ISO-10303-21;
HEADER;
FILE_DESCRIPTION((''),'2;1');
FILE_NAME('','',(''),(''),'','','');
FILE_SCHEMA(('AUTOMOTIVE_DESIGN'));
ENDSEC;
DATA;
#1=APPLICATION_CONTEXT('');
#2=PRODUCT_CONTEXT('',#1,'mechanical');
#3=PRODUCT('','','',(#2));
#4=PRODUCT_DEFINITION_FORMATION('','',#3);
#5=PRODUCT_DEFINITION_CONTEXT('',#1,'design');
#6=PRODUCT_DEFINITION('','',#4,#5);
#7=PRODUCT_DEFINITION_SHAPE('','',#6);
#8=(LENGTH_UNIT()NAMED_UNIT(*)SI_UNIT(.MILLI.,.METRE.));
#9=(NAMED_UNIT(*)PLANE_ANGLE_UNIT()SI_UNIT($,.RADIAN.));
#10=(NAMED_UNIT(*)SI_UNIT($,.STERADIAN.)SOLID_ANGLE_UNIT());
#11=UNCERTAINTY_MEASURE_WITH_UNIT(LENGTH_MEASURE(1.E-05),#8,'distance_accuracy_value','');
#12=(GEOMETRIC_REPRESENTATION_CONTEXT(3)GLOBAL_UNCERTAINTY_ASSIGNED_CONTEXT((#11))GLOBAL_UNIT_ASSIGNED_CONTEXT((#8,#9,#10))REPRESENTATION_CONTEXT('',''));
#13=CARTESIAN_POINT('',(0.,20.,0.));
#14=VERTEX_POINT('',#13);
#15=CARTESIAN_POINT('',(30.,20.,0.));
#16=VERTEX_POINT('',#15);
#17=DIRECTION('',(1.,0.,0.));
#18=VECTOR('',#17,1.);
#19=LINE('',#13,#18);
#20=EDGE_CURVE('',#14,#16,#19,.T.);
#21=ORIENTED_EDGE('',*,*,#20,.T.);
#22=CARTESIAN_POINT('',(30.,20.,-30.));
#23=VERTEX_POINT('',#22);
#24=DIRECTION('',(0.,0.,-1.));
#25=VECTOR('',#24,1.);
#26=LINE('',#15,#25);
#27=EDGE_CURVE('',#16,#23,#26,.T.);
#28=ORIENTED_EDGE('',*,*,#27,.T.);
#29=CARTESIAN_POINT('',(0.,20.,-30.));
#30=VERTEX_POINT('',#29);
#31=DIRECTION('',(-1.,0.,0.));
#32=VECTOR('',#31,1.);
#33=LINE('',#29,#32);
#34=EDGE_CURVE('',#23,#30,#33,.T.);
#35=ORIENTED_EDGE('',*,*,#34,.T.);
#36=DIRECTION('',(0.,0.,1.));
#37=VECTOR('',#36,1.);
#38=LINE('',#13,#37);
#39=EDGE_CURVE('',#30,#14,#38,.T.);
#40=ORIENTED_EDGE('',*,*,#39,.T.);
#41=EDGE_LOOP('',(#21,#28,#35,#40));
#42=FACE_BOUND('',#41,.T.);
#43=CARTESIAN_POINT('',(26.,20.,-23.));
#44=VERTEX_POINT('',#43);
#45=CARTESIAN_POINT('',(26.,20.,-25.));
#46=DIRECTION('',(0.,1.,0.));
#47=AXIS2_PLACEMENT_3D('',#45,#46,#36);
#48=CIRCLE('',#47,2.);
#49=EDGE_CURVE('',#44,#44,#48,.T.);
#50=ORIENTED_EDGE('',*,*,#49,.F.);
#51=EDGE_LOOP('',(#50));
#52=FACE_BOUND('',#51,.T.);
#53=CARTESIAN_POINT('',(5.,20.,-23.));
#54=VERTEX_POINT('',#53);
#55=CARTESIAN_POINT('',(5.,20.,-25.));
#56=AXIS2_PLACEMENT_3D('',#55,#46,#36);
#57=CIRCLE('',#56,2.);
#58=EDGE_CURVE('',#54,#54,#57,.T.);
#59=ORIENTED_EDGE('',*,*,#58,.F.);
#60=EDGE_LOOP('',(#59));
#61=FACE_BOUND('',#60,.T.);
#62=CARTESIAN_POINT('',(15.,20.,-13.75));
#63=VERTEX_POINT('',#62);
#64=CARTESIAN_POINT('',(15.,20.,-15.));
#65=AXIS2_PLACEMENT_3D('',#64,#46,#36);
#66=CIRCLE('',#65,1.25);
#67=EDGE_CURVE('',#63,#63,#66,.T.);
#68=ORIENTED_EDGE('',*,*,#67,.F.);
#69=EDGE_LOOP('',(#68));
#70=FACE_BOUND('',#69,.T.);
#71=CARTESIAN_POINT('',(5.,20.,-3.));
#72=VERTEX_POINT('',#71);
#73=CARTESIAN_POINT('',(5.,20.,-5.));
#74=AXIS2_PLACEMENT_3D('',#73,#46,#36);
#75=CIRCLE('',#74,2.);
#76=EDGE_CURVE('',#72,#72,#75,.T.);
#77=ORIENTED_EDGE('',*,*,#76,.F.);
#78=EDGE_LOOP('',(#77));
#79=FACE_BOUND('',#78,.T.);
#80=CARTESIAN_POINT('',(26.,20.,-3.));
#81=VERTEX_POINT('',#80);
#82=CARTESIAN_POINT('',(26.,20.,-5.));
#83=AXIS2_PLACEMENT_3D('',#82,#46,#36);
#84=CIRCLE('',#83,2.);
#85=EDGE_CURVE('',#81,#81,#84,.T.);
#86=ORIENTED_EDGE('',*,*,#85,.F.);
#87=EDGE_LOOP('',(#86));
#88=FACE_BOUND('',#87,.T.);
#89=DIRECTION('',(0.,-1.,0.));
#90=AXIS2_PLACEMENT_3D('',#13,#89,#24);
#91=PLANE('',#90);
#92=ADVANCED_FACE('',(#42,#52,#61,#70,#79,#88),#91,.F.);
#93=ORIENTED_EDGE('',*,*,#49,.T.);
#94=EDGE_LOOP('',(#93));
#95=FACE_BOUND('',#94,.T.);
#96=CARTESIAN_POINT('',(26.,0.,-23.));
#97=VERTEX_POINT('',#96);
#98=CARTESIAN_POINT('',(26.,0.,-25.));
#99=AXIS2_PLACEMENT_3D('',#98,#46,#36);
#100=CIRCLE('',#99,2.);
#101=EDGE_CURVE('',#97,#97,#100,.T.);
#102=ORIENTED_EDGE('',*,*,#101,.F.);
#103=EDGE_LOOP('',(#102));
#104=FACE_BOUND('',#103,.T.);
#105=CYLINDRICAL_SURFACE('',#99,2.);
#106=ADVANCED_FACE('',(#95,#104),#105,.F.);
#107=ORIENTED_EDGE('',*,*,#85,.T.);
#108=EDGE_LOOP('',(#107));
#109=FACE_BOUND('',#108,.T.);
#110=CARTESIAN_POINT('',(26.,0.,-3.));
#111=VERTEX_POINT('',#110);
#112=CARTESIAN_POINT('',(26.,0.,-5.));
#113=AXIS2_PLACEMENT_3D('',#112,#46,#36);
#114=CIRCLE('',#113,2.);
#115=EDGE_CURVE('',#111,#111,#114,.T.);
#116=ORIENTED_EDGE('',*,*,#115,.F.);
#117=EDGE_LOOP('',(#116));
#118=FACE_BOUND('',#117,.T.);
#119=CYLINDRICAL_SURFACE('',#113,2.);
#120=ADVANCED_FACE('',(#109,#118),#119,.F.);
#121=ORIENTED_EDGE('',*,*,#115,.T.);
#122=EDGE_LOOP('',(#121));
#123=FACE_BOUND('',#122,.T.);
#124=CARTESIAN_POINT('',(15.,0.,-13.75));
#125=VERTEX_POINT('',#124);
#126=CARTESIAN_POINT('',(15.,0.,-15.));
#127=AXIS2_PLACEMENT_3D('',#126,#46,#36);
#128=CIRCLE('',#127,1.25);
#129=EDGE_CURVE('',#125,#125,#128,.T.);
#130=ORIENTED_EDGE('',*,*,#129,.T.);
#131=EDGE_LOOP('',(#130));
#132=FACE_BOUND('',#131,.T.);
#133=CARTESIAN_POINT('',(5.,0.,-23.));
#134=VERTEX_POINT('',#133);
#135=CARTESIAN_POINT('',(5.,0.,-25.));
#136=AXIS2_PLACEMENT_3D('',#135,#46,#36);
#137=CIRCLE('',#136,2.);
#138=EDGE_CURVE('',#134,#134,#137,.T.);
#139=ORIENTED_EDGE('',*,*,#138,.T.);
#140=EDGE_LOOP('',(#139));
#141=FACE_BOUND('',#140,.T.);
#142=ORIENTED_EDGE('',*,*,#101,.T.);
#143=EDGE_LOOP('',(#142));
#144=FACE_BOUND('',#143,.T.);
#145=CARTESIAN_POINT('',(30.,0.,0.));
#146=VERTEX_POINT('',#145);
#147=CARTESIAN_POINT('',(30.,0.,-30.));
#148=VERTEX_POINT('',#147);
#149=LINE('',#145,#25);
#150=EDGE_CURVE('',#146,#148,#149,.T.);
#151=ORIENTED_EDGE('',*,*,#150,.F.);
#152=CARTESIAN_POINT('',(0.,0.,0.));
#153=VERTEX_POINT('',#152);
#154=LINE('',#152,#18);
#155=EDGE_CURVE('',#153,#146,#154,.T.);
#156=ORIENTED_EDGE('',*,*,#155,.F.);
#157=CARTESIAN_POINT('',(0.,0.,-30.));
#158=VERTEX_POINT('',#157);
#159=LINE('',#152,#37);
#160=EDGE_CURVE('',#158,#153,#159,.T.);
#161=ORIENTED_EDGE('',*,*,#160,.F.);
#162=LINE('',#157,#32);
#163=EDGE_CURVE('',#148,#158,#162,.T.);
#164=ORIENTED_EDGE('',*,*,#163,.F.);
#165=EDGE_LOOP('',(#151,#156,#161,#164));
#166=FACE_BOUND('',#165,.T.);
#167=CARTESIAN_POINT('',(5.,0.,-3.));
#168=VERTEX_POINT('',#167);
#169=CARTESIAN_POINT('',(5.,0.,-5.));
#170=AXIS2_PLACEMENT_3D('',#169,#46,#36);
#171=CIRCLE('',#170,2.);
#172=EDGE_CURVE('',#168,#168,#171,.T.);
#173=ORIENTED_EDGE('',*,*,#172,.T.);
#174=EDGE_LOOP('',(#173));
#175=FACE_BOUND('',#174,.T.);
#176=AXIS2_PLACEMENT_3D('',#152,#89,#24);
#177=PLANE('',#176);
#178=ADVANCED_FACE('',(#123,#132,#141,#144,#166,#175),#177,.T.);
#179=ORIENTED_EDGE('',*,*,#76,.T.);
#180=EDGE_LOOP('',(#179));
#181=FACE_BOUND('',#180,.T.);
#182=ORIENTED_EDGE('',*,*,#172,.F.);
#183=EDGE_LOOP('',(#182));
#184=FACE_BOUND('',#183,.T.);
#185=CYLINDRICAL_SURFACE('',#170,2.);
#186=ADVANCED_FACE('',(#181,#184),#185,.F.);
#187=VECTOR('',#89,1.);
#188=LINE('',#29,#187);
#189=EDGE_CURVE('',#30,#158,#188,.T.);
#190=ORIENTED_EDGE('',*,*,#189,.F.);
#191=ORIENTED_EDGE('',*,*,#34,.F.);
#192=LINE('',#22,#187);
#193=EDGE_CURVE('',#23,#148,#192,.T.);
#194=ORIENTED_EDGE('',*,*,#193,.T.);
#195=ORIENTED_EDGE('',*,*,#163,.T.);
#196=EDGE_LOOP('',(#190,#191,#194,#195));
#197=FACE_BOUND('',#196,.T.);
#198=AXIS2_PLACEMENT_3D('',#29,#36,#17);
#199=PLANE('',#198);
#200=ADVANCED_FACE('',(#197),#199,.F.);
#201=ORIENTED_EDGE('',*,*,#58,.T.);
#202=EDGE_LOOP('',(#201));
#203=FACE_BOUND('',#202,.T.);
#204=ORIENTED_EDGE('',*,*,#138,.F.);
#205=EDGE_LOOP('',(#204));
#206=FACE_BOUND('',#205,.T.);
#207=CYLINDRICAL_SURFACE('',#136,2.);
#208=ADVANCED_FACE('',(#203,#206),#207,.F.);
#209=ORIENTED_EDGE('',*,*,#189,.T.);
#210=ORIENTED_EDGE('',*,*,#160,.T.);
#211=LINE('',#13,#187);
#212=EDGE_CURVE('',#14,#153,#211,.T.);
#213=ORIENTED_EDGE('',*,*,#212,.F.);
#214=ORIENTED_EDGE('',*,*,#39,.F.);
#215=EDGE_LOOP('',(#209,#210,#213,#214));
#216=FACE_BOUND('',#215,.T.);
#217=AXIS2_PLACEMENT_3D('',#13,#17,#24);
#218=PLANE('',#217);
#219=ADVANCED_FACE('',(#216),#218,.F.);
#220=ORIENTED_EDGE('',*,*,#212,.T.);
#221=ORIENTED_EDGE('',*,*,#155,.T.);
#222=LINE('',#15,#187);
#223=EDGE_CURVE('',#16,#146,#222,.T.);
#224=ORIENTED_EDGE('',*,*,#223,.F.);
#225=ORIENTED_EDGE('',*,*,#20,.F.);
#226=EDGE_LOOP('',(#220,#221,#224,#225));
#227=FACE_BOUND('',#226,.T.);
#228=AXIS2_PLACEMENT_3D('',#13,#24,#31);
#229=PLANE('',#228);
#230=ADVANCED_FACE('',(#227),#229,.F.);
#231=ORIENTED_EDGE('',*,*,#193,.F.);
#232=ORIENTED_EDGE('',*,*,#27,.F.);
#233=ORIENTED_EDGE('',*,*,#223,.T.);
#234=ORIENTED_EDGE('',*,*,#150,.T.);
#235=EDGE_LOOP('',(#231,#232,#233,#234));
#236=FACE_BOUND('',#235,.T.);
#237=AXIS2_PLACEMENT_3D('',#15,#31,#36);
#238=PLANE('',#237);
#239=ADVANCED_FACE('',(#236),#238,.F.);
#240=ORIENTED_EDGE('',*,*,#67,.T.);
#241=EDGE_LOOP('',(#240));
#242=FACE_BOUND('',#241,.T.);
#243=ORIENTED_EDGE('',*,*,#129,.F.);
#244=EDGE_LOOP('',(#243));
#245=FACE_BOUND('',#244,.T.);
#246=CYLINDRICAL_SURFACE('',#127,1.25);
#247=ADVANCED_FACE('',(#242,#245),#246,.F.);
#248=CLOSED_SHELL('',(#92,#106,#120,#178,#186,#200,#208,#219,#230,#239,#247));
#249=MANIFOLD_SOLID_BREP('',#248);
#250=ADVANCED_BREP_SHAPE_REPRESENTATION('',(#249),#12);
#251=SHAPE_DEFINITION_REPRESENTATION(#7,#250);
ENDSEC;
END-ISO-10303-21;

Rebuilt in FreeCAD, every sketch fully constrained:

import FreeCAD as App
import Part
import Sketcher
Q = App.Units.Quantity

doc = App.newDocument("Part")
body = doc.addObject("PartDesign::Body", "Body")

# Sketch on XZ plane
sketch1 = doc.addObject("Sketcher::SketchObject", "Sketch")
body.addObject(sketch1)
sketch1.AttachmentSupport = (doc.XZ_Plane, [""])
sketch1.MapMode = "FlatFace"
sketch1.addGeometry([
    Part.LineSegment(App.Vector(0, -30, 0), App.Vector(0, 0, 0)),
    Part.LineSegment(App.Vector(0, 0, 0), App.Vector(30, 0, 0)),
    Part.LineSegment(App.Vector(30, 0, 0), App.Vector(30, -30, 0)),
    Part.LineSegment(App.Vector(30, -30, 0), App.Vector(0, -30, 0)),
], False)
sketch1.addConstraint([
    Sketcher.Constraint("Coincident", 0, 2, 1, 1),
    Sketcher.Constraint("Coincident", 1, 2, 2, 1),
    Sketcher.Constraint("Coincident", 2, 2, 3, 1),
    Sketcher.Constraint("Coincident", 3, 2, 0, 1),
    Sketcher.Constraint("Vertical", 0),
    Sketcher.Constraint("Horizontal", 1),
    Sketcher.Constraint("Vertical", 2),
    Sketcher.Constraint("Horizontal", 3),
    Sketcher.Constraint("Coincident", 0, 2, -1, 1),
    Sketcher.Constraint("Equal", 3, 0),
    Sketcher.Constraint("DistanceX", 1, 1, 1, 2, Q("30 mm")),
])
pad1 = doc.addObject("PartDesign::Pad", "Pad")
body.addObject(pad1)
pad1.Profile = sketch1
pad1.Length = 20
pad1.Reversed = True

# Sketch on XZ plane
sketch2 = doc.addObject("Sketcher::SketchObject", "Sketch001")
body.addObject(sketch2)
sketch2.AttachmentSupport = (doc.XZ_Plane, [""])
sketch2.MapMode = "FlatFace"
sketch2.AttachmentOffset = App.Placement(App.Vector(0, 0, -20), App.Rotation())
sketch2.addGeometry([
    Part.Circle(App.Vector(5, -25, 0), App.Vector(0, 0, 1), 2),  # 0
    Part.Circle(App.Vector(5, -5, 0), App.Vector(0, 0, 1), 2),  # 1
    Part.Circle(App.Vector(26, -5, 0), App.Vector(0, 0, 1), 2),  # 2
    Part.Circle(App.Vector(26, -25, 0), App.Vector(0, 0, 1), 2),  # 3
    Part.Circle(App.Vector(15, -15, 0), App.Vector(0, 0, 1), 1.2),  # 4
], False)
sketch2.addConstraint([
    Sketcher.Constraint("Equal", 0, 1),
    Sketcher.Constraint("Equal", 1, 2),
    Sketcher.Constraint("Equal", 2, 3),
    Sketcher.Constraint("Horizontal", 1, 3, 2, 3),
    Sketcher.Constraint("Horizontal", 0, 3, 3, 3),
    Sketcher.Constraint("Vertical", 0, 3, 1, 3),
    Sketcher.Constraint("Vertical", 2, 3, 3, 3),
    Sketcher.Constraint("Diameter", 0, Q("4 mm")),
    Sketcher.Constraint("Diameter", 4, Q("2.5 mm")),
    Sketcher.Constraint("DistanceX", -1, 1, 0, 3, Q("5 mm")),
    Sketcher.Constraint("DistanceY", 0, 3, -1, 1, Q("25 mm")),
    Sketcher.Constraint("DistanceY", 1, 3, -1, 1, Q("5 mm")),
    Sketcher.Constraint("DistanceX", -1, 1, 2, 3, Q("26 mm")),
    Sketcher.Constraint("DistanceX", -1, 1, 4, 3, Q("15 mm")),
    Sketcher.Constraint("DistanceY", 4, 3, -1, 1, Q("15 mm")),
])
pocket1 = doc.addObject("PartDesign::Pocket", "Pocket")
body.addObject(pocket1)
pocket1.Profile = sketch2
pocket1.Length = 20
pocket1.Reversed = True

doc.recompute()
